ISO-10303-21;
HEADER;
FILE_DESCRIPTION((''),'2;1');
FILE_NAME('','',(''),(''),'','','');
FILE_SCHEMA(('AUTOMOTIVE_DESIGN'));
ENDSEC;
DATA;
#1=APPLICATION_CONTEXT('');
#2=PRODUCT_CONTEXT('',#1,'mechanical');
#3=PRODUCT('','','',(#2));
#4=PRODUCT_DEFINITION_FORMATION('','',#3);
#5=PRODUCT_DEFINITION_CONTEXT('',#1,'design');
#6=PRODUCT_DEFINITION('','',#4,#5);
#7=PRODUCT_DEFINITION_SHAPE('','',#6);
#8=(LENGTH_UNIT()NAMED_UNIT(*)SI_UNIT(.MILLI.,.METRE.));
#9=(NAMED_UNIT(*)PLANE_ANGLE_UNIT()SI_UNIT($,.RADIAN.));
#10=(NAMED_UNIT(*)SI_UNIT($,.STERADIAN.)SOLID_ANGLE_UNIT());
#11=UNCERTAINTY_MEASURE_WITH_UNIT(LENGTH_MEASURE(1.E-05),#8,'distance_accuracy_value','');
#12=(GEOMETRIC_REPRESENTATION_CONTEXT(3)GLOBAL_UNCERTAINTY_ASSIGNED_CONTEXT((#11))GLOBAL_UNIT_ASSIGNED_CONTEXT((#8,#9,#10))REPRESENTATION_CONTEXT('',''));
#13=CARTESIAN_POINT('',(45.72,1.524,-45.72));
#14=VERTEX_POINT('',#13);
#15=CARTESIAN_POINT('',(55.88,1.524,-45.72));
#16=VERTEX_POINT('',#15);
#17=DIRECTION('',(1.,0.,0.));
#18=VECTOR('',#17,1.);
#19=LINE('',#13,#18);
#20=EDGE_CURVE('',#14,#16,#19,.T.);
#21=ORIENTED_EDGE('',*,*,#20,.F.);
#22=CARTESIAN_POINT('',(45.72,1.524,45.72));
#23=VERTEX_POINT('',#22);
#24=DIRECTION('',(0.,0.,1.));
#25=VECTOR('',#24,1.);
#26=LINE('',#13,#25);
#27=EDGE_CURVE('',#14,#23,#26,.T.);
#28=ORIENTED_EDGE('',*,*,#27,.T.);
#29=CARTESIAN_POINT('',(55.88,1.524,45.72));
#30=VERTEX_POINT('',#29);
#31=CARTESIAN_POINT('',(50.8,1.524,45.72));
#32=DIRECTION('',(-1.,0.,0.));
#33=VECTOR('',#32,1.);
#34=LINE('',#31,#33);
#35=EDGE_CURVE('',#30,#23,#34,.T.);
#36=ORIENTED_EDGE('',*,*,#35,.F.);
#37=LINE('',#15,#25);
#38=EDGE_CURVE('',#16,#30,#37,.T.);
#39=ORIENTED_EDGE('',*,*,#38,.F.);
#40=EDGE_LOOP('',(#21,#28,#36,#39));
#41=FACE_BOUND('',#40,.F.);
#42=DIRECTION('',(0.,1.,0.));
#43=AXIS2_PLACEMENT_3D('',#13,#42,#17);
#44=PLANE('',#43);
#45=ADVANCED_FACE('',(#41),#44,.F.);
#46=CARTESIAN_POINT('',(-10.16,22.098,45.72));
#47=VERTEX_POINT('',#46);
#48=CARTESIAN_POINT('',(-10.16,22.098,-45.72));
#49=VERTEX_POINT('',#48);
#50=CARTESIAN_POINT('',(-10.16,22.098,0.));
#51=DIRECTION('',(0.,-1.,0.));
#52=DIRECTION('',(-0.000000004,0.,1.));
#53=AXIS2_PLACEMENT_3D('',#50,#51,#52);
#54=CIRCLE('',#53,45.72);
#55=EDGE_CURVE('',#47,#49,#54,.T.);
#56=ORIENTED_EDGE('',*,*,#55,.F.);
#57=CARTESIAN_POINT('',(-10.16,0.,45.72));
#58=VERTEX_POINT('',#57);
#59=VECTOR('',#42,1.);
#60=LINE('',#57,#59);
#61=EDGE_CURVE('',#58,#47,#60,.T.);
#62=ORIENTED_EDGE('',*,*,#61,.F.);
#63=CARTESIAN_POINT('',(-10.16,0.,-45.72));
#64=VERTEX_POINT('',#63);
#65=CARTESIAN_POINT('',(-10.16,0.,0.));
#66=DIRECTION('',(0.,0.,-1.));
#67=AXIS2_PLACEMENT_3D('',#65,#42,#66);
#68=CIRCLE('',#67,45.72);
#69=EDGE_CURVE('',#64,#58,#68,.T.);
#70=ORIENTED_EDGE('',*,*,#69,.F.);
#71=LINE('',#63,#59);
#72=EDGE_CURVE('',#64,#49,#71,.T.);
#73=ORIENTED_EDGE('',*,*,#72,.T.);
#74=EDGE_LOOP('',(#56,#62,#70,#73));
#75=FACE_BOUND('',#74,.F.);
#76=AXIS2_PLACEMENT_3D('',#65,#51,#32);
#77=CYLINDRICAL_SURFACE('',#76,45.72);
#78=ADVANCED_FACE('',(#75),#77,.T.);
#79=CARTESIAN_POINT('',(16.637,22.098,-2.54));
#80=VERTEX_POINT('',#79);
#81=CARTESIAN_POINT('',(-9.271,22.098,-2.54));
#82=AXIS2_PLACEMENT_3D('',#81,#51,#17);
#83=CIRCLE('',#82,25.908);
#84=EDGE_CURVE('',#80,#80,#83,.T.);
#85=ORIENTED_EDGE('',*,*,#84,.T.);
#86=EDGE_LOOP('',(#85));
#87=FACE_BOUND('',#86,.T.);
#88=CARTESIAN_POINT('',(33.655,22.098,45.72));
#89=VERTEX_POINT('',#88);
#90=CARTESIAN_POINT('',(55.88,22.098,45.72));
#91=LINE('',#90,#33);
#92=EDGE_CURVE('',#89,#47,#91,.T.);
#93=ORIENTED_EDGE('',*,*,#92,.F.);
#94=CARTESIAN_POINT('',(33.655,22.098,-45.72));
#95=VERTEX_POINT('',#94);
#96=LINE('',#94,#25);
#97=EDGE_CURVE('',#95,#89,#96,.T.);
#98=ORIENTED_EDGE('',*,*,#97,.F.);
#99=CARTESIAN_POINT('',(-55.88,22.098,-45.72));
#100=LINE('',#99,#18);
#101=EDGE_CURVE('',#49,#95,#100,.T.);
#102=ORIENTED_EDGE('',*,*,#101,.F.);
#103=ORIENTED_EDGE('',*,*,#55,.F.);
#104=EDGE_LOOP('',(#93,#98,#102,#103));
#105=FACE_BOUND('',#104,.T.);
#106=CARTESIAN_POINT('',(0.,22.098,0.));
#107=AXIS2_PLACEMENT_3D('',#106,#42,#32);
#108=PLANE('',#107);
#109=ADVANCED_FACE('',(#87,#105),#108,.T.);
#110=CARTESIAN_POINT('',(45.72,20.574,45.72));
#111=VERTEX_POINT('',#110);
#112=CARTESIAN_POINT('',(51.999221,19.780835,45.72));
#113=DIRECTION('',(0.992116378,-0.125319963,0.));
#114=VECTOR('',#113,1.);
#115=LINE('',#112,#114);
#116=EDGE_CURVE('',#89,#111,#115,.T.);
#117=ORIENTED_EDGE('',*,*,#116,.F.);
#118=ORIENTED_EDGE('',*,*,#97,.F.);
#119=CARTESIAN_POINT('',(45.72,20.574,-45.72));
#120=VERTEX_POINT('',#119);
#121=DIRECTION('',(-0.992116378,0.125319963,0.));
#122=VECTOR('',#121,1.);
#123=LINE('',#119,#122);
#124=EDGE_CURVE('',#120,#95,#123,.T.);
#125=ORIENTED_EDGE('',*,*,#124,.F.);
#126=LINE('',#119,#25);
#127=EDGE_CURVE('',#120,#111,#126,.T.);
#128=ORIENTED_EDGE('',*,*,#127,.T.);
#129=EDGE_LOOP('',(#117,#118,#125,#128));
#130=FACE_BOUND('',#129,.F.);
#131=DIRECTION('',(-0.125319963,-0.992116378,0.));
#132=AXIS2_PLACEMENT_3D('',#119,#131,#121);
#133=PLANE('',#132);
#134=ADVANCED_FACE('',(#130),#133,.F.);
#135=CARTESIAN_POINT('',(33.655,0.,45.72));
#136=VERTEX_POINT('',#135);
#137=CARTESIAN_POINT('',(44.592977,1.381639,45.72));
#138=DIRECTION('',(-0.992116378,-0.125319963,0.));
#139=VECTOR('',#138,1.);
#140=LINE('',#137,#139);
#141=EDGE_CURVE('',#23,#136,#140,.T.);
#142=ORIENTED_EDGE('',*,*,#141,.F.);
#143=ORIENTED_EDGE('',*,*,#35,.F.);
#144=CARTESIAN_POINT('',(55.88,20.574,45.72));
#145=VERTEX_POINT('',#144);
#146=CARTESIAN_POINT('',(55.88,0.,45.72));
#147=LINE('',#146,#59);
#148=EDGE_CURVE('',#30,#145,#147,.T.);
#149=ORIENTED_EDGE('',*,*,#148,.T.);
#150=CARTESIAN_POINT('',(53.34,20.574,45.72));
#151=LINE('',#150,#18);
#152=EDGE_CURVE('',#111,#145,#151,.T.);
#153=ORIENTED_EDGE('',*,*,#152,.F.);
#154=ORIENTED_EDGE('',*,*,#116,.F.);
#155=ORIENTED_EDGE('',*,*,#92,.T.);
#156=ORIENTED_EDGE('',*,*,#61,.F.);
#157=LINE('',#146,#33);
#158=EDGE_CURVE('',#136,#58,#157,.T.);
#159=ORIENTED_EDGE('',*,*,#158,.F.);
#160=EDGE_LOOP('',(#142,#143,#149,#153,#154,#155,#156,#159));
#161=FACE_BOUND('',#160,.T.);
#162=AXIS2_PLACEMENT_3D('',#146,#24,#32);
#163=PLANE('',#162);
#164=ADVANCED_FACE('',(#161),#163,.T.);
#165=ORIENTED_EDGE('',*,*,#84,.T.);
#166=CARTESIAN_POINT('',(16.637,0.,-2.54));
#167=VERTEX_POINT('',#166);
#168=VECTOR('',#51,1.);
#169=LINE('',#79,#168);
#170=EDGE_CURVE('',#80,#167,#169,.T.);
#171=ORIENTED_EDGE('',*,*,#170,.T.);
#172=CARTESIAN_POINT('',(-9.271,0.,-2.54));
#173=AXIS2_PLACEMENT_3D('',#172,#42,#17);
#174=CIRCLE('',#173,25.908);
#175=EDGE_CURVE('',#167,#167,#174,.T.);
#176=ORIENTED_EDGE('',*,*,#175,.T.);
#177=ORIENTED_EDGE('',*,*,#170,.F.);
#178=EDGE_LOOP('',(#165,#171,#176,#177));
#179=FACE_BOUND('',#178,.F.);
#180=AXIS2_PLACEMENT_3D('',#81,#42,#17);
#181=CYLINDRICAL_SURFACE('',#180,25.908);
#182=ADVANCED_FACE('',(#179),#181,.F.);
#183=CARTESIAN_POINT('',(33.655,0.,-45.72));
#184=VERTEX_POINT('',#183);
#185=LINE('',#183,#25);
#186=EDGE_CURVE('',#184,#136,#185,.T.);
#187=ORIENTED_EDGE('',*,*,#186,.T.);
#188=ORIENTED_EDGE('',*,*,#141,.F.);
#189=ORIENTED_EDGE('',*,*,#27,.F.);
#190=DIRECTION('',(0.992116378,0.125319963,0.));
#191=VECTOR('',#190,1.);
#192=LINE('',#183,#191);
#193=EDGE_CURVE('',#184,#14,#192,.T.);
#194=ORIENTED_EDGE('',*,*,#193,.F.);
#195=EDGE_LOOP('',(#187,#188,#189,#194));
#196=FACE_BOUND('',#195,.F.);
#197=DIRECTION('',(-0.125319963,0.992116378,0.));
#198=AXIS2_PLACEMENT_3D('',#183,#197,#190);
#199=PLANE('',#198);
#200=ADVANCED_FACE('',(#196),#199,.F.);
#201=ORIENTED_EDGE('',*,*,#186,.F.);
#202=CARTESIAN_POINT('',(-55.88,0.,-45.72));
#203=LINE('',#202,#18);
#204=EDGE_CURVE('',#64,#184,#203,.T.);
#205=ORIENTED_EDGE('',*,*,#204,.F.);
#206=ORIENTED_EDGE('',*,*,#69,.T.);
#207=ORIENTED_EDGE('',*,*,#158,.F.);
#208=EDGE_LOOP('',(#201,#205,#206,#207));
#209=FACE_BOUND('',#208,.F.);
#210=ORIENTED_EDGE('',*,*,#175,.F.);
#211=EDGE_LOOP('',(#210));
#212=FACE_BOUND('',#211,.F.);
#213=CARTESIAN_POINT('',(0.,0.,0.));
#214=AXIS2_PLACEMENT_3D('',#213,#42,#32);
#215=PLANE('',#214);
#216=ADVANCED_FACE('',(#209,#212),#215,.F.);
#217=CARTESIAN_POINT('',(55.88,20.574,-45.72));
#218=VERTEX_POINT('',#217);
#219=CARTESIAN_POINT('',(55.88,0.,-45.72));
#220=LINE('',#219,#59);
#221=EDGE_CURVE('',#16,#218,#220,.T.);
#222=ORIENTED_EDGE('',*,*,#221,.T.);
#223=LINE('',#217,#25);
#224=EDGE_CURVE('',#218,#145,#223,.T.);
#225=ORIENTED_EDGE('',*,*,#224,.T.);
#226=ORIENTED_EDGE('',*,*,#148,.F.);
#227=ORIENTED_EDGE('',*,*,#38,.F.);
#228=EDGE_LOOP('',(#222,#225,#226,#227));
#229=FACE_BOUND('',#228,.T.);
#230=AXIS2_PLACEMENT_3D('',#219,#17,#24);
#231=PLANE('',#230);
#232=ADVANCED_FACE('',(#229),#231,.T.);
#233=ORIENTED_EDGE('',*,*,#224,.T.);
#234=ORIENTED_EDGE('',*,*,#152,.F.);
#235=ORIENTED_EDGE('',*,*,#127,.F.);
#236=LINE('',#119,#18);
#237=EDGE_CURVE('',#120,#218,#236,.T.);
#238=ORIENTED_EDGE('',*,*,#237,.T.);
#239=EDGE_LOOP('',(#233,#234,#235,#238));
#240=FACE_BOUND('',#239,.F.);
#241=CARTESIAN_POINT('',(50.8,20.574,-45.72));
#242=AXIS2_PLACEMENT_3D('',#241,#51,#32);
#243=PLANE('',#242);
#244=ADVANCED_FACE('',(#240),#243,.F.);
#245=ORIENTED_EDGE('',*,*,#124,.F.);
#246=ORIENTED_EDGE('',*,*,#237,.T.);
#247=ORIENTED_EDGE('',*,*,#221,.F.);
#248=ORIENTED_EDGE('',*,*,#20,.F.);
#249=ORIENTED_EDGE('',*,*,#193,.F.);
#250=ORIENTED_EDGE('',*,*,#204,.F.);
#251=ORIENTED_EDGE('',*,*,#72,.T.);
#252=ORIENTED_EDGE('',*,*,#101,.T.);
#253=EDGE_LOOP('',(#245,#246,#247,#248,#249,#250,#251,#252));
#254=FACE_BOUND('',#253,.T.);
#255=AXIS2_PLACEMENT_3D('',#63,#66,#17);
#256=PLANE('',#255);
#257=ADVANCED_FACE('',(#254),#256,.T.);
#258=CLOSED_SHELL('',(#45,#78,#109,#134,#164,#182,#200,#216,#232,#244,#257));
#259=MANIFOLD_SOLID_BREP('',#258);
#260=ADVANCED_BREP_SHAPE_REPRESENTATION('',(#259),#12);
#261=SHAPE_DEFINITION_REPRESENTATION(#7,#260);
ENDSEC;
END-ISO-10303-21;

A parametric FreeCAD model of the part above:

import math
import FreeCAD as App
import Part
import Sketcher
from FreeCAD import Vector
Q = App.Units.Quantity


def add_polygon(sketch, points):
    """Adds a closed chain of lines whose ends are joined by coincident constraints."""
    first, n = sketch.GeometryCount, len(points)
    for a, b in zip(points, points[1:] + points[:1]):
        sketch.addGeometry(Part.LineSegment(App.Vector(*a, 0), App.Vector(*b, 0)), False)
    for i in range(n):
        sketch.addConstraint(Sketcher.Constraint("Coincident", first + i, 2, first + (i + 1) % n, 1))

doc = App.newDocument("Part")
params = doc.addObject("Spreadsheet::Sheet", "Params")
for row, (alias, value) in enumerate([
    ("sketch1_radius", "1.8 in"),
    ("sketch1_width", "2.6 in"),
    ("pad1_length", "0.87 in"),
    ("sketch2_width", "0.4 in"),
    ("sketch2_height", "0.06 in"),
    ("pocket1_length", "10 in"),
    ("sketch3_diameter", "2.04 in"),
    ("pocket2_length", "10 in"),
], start=1):
    params.set(f"A{row}", alias)
    params.set(f"B{row}", "=" + value)
    params.setAlias(f"B{row}", alias)

body = doc.addObject("PartDesign::Body", "Body")

# Sketch on XZ plane
sketch1 = body.newObject("Sketcher::SketchObject", "Sketch")
sketch1.AttachmentSupport = (doc.getObject("XZ_Plane"), [""])
sketch1.MapMode = "FlatFace"
sketch1.addGeometry([
    Part.LineSegment(Vector(-10, 46, 0), Vector(56, 46, 0)),
    Part.LineSegment(Vector(56, 46, 0), Vector(56, -46, 0)),
    Part.LineSegment(Vector(56, -46, 0), Vector(-10, -46, 0)),
    Part.ArcOfCircle(Part.Circle(Vector(-10, 0, 0), Vector(0, 0, 1), 46), math.radians(90), math.radians(270)),
], False)
sketch1.addConstraint([
    Sketcher.Constraint("Coincident", 0, 2, 1, 1),
    Sketcher.Constraint("Coincident", 1, 2, 2, 1),
    Sketcher.Constraint("Tangent", 2, 2, 3, 2),
    Sketcher.Constraint("Tangent", 3, 1, 0, 1),
    Sketcher.Constraint("Horizontal", 0),
    Sketcher.Constraint("Vertical", 1),
    Sketcher.Constraint("Horizontal", 2),
    Sketcher.Constraint("PointOnObject", 3, 3, -1),
    Sketcher.Constraint("Radius", 3, Q("1.8 in")),
    Sketcher.Constraint("DistanceX", 0, 1, 0, 2, Q("2.6 in")),
    Sketcher.Constraint("DistanceX", 3, 3, -1, 1, Q("0.4 in")),
])
sketch1.setExpression("Constraints[8]", "Params.sketch1_radius")
sketch1.setExpression("Constraints[9]", "Params.sketch1_width")
pad1 = body.newObject("PartDesign::Pad", "Pad")
pad1.Profile = sketch1
pad1.setExpression("Length", "Params.pad1_length")
pad1.Reversed = True

# Sketch on XY plane
sketch2 = body.newObject("Sketcher::SketchObject", "Sketch001")
sketch2.AttachmentSupport = (doc.getObject("XY_Plane"), [""])
sketch2.MapMode = "FlatFace"
sketch2.AttachmentOffset = App.Placement(Vector(0, 0, -1.8 * 25.4), App.Rotation())
add_polygon(sketch2, [(45.7, 20.6), (33.7, 22.1), (55.9, 22.1), (55.9, 20.6)])  # lines 0-3
add_polygon(sketch2, [(33.7, 0), (45.7, 1.5), (55.9, 1.5), (55.9, 0)])  # lines 4-7
sketch2.addConstraint([
    Sketcher.Constraint("Horizontal", 1),
    Sketcher.Constraint("Vertical", 2),
    Sketcher.Constraint("Horizontal", 3),
    Sketcher.Constraint("Horizontal", 5),
    Sketcher.Constraint("Vertical", 6),
    Sketcher.Constraint("Horizontal", 7),
    Sketcher.Constraint("PointOnObject", 6, 2, -1),
    Sketcher.Constraint("Vertical", 3, 2, 4, 2),
    Sketcher.Constraint("Vertical", 2, 2, 5, 2),
    Sketcher.Constraint("Vertical", 0, 2, 7, 2),
    Sketcher.Constraint("Equal", 2, 6),
    Sketcher.Constraint("DistanceX", 3, 2, 3, 1, Q("0.4 in")),
    Sketcher.Constraint("DistanceY", 4, 2, 3, 2, Q("0.75 in")),
    Sketcher.Constraint("DistanceX", 0, 2, 3, 2, Q("0.475 in")),
    Sketcher.Constraint("DistanceY", 2, 2, 2, 1, Q("0.06 in")),
    Sketcher.Constraint("DistanceX", -1, 1, 1, 2, Q("2.2 in")),
])
sketch2.setExpression("Constraints[19]", "Params.sketch2_width")
sketch2.setExpression("Constraints[22]", "Params.sketch2_height")
pocket1 = body.newObject("PartDesign::Pocket", "Pocket")
pocket1.Profile = sketch2
pocket1.setExpression("Length", "Params.pocket1_length")
pocket1.Reversed = True

# Sketch on XZ plane
sketch3 = body.newObject("Sketcher::SketchObject", "Sketch002")
sketch3.AttachmentSupport = (doc.getObject("XZ_Plane"), [""])
sketch3.MapMode = "FlatFace"
sketch3.AttachmentOffset = App.Placement(Vector(0, 0, -0.87 * 25.4), App.Rotation())
sketch3.addGeometry(Part.Circle(Vector(-9, -3, 0), Vector(0, 0, 1), 26), False)
sketch3.addConstraint([
    Sketcher.Constraint("Diameter", 0, Q("2.04 in")),
    Sketcher.Constraint("DistanceY", 0, 3, -1, 1, Q("0.1 in")),
    Sketcher.Constraint("DistanceX", 0, 3, -1, 1, Q("0.365 in")),
])
sketch3.setExpression("Constraints[0]", "Params.sketch3_diameter")
pocket2 = body.newObject("PartDesign::Pocket", "Pocket001")
pocket2.Profile = sketch3
pocket2.setExpression("Length", "Params.pocket2_length")
pocket2.Reversed = True

doc.recompute()
